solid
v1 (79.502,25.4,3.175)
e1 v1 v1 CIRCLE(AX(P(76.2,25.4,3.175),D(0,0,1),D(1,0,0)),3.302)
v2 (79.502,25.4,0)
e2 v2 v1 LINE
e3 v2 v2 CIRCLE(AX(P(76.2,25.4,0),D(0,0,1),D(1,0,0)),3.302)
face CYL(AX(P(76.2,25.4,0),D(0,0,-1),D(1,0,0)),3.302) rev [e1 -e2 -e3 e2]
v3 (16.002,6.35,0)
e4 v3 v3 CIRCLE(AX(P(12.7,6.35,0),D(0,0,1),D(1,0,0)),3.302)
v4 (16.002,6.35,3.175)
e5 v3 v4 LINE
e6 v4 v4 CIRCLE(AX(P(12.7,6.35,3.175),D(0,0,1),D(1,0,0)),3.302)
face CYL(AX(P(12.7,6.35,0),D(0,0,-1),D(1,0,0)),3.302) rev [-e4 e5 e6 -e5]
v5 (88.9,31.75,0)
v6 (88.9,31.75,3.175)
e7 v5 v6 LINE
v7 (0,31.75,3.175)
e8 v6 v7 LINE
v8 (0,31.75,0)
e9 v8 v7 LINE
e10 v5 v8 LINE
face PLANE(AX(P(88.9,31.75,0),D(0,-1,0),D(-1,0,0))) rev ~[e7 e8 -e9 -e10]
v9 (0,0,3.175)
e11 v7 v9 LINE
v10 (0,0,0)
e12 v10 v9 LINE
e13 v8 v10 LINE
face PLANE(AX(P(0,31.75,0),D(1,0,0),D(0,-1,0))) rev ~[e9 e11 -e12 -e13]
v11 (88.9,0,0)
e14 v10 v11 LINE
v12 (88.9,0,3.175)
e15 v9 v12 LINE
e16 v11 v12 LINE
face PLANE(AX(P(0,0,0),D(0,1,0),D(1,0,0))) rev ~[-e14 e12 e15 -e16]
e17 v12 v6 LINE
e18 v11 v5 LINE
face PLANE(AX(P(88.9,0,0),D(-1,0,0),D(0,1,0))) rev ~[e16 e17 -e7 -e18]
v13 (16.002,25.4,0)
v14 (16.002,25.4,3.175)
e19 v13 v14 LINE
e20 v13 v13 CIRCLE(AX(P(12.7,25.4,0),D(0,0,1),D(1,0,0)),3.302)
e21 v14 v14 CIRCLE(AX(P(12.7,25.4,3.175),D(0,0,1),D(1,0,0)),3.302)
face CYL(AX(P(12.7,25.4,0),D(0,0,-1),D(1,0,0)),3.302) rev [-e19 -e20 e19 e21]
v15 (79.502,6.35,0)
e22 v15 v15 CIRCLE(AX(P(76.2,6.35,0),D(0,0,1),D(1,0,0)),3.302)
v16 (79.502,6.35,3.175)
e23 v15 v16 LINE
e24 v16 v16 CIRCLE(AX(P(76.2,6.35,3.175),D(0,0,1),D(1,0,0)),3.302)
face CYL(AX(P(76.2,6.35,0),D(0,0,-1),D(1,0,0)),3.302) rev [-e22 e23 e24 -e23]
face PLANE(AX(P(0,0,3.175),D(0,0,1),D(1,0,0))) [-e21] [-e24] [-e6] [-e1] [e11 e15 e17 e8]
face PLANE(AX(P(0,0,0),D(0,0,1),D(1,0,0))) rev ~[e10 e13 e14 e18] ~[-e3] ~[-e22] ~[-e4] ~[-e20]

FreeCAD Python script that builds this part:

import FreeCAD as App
import Part
import Sketcher

V = App.Vector
Q = App.Units.Quantity


def add_polygon(sketch, points):
    """Adds a closed chain of lines whose ends are joined by coincident constraints."""
    first, n = sketch.GeometryCount, len(points)
    for a, b in zip(points, points[1:] + points[:1]):
        sketch.addGeometry(Part.LineSegment(App.Vector(*a, 0), App.Vector(*b, 0)), False)
    for i in range(n):
        sketch.addConstraint(Sketcher.Constraint("Coincident", first + i, 2, first + (i + 1) % n, 1))

doc = App.newDocument("Part")
params = doc.addObject("Spreadsheet::Sheet", "Params")
for row, (alias, value) in enumerate([
    ("sketch1_diameter", "0.26 in"),
    ("sketch1_width", "3.5 in"),
    ("sketch1_height", "1.25 in"),
    ("pad1_length", "0.125 in"),
], start=1):
    params.set(f"A{row}", alias)
    params.set(f"B{row}", "=" + value)
    params.setAlias(f"B{row}", alias)

body = doc.addObject("PartDesign::Body", "Body")

# Sketch on XY plane
sketch1 = doc.addObject("Sketcher::SketchObject", "Sketch")
body.addObject(sketch1)
sketch1.AttachmentSupport = (doc.XY_Plane, [""])
sketch1.MapMode = "FlatFace"
add_polygon(sketch1, [(0, 31.8), (0, 0), (88.9, 0), (88.9, 31.8)])  # lines 0-3
sketch1.addGeometry(Part.Circle(V(12.7, 6.3, 0), V(0, 0, 1), 3.3), False)  # 4
sketch1.addGeometry(Part.Circle(V(76.2, 6.3, 0), V(0, 0, 1), 3.3), False)  # 5
sketch1.addGeometry(Part.Circle(V(12.7, 25.4, 0), V(0, 0, 1), 3.3), False)  # 6
sketch1.addGeometry(Part.Circle(V(76.2, 25.4, 0), V(0, 0, 1), 3.3), False)  # 7
sketch1.addConstraint(Sketcher.Constraint("Vertical", 0))
sketch1.addConstraint(Sketcher.Constraint("Horizontal", 1))
sketch1.addConstraint(Sketcher.Constraint("Vertical", 2))
sketch1.addConstraint(Sketcher.Constraint("Horizontal", 3))
sketch1.addConstraint(Sketcher.Constraint("Coincident", 0, 2, -1, 1))
sketch1.addConstraint(Sketcher.Constraint("Equal", 4, 5))
sketch1.addConstraint(Sketcher.Constraint("Equal", 5, 6))
sketch1.addConstraint(Sketcher.Constraint("Equal", 6, 7))
sketch1.addConstraint(Sketcher.Constraint("Horizontal", 4, 3, 5, 3))
sketch1.addConstraint(Sketcher.Constraint("Horizontal", 6, 3, 7, 3))
sketch1.addConstraint(Sketcher.Constraint("Vertical", 4, 3, 6, 3))
sketch1.addConstraint(Sketcher.Constraint("Vertical", 5, 3, 7, 3))
sketch1.addConstraint(Sketcher.Constraint("Diameter", 4, Q("0.26 in")))
sketch1.addConstraint(Sketcher.Constraint("DistanceX", 1, 1, 1, 2, Q("3.5 in")))
sketch1.addConstraint(Sketcher.Constraint("DistanceY", 0, 2, 0, 1, Q("1.25 in")))
sketch1.addConstraint(Sketcher.Constraint("DistanceX", 4, 3, 5, 3, Q("2.5 in")))
sketch1.addConstraint(Sketcher.Constraint("DistanceY", -1, 1, 4, 3, Q("0.25 in")))
sketch1.addConstraint(Sketcher.Constraint("DistanceY", 4, 3, 6, 3, Q("0.75 in")))
sketch1.addConstraint(Sketcher.Constraint("DistanceX", -1, 1, 5, 3, Q("3 in")))
sketch1.setExpression("Constraints[16]", "Params.sketch1_diameter")
sketch1.setExpression("Constraints[17]", "Params.sketch1_width")
sketch1.setExpression("Constraints[18]", "Params.sketch1_height")
pad1 = doc.addObject("PartDesign::Pad", "Pad")
body.addObject(pad1)
pad1.Profile = sketch1
pad1.setExpression("Length", "Params.pad1_length")

doc.recompute()
